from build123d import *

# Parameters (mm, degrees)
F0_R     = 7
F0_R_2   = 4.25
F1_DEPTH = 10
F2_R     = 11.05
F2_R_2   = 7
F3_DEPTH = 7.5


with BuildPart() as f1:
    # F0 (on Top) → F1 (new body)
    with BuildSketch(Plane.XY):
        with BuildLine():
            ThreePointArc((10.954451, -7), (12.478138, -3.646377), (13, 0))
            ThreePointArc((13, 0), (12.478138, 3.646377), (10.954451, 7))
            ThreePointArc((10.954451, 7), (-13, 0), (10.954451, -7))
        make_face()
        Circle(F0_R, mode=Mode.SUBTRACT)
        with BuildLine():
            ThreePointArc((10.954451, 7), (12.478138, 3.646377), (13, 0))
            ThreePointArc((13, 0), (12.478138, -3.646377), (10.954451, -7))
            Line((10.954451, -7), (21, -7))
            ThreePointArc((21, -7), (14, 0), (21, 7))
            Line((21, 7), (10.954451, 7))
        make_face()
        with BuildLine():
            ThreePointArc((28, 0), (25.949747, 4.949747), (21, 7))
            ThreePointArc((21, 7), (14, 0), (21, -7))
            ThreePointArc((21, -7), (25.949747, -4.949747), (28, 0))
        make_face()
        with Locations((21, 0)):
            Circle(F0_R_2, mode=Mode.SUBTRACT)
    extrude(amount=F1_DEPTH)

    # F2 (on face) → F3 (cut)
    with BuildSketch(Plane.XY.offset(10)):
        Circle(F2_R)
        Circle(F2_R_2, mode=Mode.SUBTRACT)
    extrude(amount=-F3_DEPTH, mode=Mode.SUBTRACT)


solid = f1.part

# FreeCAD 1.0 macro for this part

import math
import FreeCAD as App
import Part
import Sketcher
Q = App.Units.Quantity

doc = App.newDocument("Part")
body = doc.addObject("PartDesign::Body", "Body")

# Sketch on XY plane
sketch1 = body.newObject("Sketcher::SketchObject", "Sketch")
sketch1.AttachmentSupport = (doc.getObject("XY_Plane"), [""])
sketch1.MapMode = "FlatFace"
sketch1.addGeometry([
    Part.ArcOfCircle(Part.Circle(App.Vector(0, 0, 0), App.Vector(0, 0, 1), 13), math.radians(33), math.radians(327)),  # 0
    Part.LineSegment(App.Vector(11, -7, 0), App.Vector(21, -7, 0)),  # 1
    Part.ArcOfCircle(Part.Circle(App.Vector(21, 0, 0), App.Vector(0, 0, 1), 7), math.radians(-90), math.radians(0)),  # 2
    Part.ArcOfCircle(Part.Circle(App.Vector(21, 0, 0), App.Vector(0, 0, 1), 7), math.radians(0), math.radians(90)),  # 3
    Part.LineSegment(App.Vector(21, 7, 0), App.Vector(11, 7, 0)),  # 4
    Part.Circle(App.Vector(0, 0, 0), App.Vector(0, 0, 1), 7),  # 5
    Part.Circle(App.Vector(21, 0, 0), App.Vector(0, 0, 1), 4.2),  # 6
], False)
sketch1.addConstraint([
    Sketcher.Constraint("Coincident", 0, 2, 1, 1),
    Sketcher.Constraint("Tangent", 1, 2, 2, 1),
    Sketcher.Constraint("Tangent", 2, 2, 3, 1),
    Sketcher.Constraint("Tangent", 3, 2, 4, 1),
    Sketcher.Constraint("Coincident", 4, 2, 0, 1),
    Sketcher.Constraint("Horizontal", 1),
    Sketcher.Constraint("Horizontal", 4),
    Sketcher.Constraint("Coincident", 0, 3, -1, 1),
    Sketcher.Constraint("Coincident", 5, 3, -1, 1),
    Sketcher.Constraint("Coincident", 6, 3, 2, 3),
    Sketcher.Constraint("Equal", 2, 3),
    Sketcher.Constraint("Equal", 3, 5),
    Sketcher.Constraint("PointOnObject", 2, 3, -1),
    Sketcher.Constraint("PointOnObject", 2, 2, -1),
    Sketcher.Constraint("Diameter", 5, Q("14 mm")),
    Sketcher.Constraint("Radius", 0, Q("13 mm")),
    Sketcher.Constraint("Diameter", 6, Q("8.5 mm")),
    Sketcher.Constraint("DistanceX", -1, 1, 2, 3, Q("20.999998 mm")),
])
pad1 = body.newObject("PartDesign::Pad", "Pad")
pad1.Profile = sketch1
pad1.Length = 10

# Sketch on XY plane
sketch2 = body.newObject("Sketcher::SketchObject", "Sketch001")
sketch2.AttachmentSupport = (doc.getObject("XY_Plane"), [""])
sketch2.MapMode = "FlatFace"
sketch2.AttachmentOffset = App.Placement(App.Vector(0, 0, 10), App.Rotation())
sketch2.addGeometry([
    Part.Circle(App.Vector(0, 0, 0), App.Vector(0, 0, 1), 11),
    Part.Circle(App.Vector(0, 0, 0), App.Vector(0, 0, 1), 7),
], False)
sketch2.addConstraint([
    Sketcher.Constraint("Coincident", 0, 3, -1, 1),
    Sketcher.Constraint("Coincident", 1, 3, -1, 1),
    Sketcher.Constraint("Diameter", 1, Q("14 mm")),
    Sketcher.Constraint("Diameter", 0, Q("22.1 mm")),
])
pocket1 = body.newObject("PartDesign::Pocket", "Pocket")
pocket1.Profile = sketch2
pocket1.Length = 7.5

doc.recompute()
